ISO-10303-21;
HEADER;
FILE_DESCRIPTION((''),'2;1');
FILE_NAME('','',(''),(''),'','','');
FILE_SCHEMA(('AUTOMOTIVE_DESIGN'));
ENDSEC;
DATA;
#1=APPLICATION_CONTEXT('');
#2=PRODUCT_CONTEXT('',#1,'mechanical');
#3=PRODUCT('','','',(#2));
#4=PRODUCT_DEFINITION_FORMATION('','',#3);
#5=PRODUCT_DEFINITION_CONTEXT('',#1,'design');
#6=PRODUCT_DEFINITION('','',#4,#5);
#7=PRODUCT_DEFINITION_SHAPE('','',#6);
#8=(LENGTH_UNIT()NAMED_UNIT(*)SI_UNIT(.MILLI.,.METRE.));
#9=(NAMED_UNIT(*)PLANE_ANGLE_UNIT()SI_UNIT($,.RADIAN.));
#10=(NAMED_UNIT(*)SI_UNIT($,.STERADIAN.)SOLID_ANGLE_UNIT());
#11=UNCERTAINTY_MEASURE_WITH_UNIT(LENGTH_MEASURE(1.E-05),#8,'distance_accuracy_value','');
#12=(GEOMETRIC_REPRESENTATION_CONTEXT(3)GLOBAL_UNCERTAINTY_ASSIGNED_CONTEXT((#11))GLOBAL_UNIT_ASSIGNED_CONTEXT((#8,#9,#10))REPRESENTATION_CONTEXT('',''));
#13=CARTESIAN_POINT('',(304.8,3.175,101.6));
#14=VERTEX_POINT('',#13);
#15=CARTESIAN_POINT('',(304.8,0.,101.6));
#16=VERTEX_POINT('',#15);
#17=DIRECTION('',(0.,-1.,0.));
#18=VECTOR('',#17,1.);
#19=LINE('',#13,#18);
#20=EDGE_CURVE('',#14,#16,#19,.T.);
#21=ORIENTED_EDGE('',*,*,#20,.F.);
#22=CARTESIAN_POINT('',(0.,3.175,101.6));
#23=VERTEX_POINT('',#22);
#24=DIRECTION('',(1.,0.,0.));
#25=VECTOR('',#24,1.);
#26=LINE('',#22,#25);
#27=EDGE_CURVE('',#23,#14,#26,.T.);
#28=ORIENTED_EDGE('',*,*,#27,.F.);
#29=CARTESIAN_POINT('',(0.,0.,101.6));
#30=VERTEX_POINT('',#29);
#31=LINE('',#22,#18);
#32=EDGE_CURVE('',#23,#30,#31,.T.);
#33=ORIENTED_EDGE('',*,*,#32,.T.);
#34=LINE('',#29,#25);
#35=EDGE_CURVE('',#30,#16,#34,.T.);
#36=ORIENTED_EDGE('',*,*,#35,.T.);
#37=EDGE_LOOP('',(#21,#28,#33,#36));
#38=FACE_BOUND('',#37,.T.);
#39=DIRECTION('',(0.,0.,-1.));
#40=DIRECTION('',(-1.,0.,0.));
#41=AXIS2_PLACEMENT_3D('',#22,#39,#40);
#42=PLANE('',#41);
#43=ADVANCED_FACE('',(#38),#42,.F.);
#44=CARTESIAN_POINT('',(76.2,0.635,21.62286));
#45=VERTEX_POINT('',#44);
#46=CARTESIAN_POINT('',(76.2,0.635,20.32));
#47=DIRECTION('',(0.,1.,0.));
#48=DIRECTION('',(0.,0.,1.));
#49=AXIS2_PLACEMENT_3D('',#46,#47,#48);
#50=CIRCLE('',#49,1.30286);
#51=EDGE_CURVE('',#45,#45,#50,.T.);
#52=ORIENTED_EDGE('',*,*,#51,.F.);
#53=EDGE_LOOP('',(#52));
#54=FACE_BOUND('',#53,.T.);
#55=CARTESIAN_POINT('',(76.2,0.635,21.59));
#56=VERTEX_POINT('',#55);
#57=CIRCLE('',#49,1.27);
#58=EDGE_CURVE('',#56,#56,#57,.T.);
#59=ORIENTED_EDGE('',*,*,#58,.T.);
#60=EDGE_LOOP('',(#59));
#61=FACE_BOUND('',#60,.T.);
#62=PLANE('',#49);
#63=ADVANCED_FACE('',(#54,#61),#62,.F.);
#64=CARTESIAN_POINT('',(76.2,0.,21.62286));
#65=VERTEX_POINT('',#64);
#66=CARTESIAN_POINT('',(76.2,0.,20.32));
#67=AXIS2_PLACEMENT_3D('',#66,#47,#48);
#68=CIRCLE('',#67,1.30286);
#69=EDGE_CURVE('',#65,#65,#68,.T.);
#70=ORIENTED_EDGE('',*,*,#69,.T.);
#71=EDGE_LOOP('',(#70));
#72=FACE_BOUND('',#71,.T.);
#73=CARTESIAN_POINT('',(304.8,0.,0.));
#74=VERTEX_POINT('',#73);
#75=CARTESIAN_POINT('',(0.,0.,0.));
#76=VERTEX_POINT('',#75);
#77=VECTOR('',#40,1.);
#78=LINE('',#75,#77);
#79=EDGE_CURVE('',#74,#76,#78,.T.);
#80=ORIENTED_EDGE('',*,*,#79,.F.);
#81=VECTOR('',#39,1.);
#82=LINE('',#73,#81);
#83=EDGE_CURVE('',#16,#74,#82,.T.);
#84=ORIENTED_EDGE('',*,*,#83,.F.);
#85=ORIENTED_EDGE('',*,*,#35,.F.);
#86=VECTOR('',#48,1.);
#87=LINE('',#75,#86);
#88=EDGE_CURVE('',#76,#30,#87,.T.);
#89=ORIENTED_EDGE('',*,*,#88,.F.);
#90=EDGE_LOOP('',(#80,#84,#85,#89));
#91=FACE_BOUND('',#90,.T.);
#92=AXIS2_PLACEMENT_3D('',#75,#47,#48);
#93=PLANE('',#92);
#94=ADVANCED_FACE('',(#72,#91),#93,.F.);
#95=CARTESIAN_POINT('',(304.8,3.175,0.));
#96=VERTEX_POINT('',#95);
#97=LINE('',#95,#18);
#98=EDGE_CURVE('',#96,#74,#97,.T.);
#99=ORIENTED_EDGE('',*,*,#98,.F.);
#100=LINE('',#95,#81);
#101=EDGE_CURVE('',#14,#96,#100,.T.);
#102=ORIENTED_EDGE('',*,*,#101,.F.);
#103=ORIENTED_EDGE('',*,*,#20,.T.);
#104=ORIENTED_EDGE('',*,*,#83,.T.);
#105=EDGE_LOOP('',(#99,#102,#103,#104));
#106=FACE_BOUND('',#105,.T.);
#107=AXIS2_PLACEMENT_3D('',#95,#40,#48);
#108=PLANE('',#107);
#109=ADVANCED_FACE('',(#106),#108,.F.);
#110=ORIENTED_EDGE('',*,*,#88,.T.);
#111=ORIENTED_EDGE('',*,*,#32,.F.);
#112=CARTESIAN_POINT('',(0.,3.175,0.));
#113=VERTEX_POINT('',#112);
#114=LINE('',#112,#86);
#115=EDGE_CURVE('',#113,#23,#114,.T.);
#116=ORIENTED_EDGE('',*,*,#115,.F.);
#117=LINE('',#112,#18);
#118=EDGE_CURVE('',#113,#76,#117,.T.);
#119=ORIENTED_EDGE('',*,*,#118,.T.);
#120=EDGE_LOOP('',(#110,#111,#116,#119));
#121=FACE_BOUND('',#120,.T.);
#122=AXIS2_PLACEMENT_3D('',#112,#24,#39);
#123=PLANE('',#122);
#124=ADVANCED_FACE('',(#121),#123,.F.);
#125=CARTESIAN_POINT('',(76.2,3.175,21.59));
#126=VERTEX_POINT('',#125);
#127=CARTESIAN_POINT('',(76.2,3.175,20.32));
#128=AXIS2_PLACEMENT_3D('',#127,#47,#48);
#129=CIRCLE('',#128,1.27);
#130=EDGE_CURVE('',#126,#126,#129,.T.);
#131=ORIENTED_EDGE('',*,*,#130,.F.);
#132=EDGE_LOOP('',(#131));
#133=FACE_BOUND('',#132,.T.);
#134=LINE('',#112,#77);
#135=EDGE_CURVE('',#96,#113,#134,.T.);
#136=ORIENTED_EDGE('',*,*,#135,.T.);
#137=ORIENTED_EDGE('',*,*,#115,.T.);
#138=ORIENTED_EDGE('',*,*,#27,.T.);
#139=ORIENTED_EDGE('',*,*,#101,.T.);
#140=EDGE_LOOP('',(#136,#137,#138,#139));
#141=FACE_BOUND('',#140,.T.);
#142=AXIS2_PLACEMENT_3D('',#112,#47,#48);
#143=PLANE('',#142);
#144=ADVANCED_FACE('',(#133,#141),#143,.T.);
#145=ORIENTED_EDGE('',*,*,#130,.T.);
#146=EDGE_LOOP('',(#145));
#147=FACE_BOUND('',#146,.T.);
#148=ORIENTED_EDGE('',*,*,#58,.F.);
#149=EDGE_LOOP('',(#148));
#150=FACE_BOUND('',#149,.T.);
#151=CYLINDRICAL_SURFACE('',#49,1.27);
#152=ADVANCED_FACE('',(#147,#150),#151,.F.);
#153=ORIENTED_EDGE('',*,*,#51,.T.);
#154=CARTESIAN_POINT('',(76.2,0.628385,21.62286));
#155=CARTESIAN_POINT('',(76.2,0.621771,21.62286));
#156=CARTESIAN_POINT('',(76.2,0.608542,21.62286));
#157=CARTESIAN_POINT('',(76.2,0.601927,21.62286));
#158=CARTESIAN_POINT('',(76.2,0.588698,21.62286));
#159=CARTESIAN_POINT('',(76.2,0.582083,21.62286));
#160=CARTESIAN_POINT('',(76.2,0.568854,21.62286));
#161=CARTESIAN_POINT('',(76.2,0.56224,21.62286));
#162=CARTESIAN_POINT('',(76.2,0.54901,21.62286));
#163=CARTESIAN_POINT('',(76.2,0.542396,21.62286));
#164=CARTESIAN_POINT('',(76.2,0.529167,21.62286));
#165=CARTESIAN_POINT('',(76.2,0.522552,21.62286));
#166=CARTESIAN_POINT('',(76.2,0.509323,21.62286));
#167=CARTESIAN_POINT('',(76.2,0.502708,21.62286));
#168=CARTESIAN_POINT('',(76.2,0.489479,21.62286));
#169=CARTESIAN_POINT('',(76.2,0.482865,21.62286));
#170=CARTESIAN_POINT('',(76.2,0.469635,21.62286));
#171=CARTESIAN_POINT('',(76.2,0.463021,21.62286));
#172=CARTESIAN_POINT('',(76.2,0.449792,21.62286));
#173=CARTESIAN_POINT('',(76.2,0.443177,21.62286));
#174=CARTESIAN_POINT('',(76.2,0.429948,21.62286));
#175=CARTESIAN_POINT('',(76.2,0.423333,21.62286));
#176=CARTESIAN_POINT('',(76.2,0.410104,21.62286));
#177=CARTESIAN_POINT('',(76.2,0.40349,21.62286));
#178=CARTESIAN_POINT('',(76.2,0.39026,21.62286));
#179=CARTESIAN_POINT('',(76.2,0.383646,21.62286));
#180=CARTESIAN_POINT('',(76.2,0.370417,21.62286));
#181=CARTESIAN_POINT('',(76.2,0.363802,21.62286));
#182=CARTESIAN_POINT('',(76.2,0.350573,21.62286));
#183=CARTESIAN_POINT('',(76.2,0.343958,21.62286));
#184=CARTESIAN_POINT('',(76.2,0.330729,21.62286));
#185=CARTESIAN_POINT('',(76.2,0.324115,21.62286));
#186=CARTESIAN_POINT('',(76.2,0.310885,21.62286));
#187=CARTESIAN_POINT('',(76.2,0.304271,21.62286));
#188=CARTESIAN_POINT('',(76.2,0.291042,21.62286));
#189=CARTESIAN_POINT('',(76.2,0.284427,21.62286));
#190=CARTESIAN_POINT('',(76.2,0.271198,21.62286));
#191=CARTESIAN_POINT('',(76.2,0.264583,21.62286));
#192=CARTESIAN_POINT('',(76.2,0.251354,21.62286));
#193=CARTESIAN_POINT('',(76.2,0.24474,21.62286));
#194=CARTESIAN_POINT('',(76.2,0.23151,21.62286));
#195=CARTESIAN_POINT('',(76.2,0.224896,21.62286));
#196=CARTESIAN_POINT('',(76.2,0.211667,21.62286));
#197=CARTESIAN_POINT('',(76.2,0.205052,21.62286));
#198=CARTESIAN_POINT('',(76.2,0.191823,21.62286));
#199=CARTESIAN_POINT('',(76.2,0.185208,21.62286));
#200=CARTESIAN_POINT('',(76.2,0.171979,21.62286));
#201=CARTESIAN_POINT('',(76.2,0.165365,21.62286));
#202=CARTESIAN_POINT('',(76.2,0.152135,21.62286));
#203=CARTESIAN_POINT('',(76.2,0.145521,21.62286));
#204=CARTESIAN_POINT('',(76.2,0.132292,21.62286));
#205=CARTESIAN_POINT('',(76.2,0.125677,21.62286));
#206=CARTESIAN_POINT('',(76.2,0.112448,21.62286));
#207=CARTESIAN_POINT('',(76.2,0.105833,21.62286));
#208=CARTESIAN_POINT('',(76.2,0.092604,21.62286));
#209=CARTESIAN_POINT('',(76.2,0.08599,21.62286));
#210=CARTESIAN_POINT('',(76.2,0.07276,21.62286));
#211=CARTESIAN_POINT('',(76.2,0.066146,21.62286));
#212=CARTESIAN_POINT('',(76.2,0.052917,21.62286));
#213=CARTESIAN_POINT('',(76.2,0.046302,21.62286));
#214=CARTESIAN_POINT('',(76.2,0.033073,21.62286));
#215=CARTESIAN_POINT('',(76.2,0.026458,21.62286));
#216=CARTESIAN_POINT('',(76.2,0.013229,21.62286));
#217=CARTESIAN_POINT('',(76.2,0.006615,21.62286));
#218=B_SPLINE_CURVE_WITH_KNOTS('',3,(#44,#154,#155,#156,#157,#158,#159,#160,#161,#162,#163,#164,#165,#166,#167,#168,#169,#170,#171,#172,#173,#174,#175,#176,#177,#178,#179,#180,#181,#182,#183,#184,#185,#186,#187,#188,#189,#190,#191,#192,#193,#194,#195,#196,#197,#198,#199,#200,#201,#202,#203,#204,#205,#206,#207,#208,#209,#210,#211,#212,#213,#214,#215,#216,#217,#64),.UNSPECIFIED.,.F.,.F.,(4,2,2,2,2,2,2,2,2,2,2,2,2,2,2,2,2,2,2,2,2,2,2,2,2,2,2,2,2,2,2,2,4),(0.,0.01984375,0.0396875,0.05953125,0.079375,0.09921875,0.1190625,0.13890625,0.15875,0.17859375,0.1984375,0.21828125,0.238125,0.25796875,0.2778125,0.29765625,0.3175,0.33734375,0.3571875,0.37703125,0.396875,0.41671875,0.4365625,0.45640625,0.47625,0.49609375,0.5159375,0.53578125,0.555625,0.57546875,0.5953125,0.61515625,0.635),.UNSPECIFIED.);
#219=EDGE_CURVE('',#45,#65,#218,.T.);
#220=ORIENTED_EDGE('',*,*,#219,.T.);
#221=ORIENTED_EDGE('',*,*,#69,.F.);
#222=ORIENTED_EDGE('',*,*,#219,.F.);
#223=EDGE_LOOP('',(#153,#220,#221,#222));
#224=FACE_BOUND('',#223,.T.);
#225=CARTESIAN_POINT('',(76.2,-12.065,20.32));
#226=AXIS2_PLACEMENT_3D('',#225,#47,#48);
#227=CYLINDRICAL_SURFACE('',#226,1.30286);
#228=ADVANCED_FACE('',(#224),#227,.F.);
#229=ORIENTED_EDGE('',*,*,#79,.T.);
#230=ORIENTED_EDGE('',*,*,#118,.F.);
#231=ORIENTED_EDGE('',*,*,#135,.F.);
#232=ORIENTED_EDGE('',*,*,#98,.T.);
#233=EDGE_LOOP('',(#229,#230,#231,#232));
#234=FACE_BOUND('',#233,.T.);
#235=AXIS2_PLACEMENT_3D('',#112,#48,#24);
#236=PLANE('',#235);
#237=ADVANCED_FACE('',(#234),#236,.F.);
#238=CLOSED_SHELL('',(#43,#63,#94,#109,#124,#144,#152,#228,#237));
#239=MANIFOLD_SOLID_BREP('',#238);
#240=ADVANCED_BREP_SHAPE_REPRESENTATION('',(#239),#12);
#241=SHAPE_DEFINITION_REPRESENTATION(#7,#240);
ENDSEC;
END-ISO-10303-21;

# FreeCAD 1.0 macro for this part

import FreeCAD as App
import Part
import Sketcher

V = App.Vector
Q = App.Units.Quantity


def add_polygon(sketch, points):
    """Adds a closed chain of lines whose ends are joined by coincident constraints."""
    first, n = sketch.GeometryCount, len(points)
    for a, b in zip(points, points[1:] + points[:1]):
        sketch.addGeometry(Part.LineSegment(App.Vector(*a, 0), App.Vector(*b, 0)), False)
    for i in range(n):
        sketch.addConstraint(Sketcher.Constraint("Coincident", first + i, 2, first + (i + 1) % n, 1))

doc = App.newDocument("Part")
body = doc.addObject("PartDesign::Body", "Body")

# Sketch on XZ plane
sketch1 = doc.addObject("Sketcher::SketchObject", "Sketch")
body.addObject(sketch1)
sketch1.AttachmentSupport = (doc.XZ_Plane, [""])
sketch1.MapMode = "FlatFace"
add_polygon(sketch1, [(0, 0), (0, 101.6), (304.8, 101.6), (304.8, 0)])  # lines 0-3
sketch1.addConstraint(Sketcher.Constraint("Vertical", 0))
sketch1.addConstraint(Sketcher.Constraint("Horizontal", 1))
sketch1.addConstraint(Sketcher.Constraint("Vertical", 2))
sketch1.addConstraint(Sketcher.Constraint("Horizontal", 3))
sketch1.addConstraint(Sketcher.Constraint("Coincident", 3, 2, -1, 1))
sketch1.addConstraint(Sketcher.Constraint("DistanceX", 1, 1, 1, 2, Q("12 in")))
sketch1.addConstraint(Sketcher.Constraint("DistanceY", 0, 1, 0, 2, Q("4 in")))
pad1 = doc.addObject("PartDesign::Pad", "Pad")
body.addObject(pad1)
pad1.Profile = sketch1
pad1.Length = Q("0.125 in")
pad1.Reversed = True

# Sketch on XZ plane
sketch2 = doc.addObject("Sketcher::SketchObject", "Sketch001")
body.addObject(sketch2)
sketch2.AttachmentSupport = (doc.XZ_Plane, [""])
sketch2.MapMode = "FlatFace"
sketch2.AttachmentOffset = App.Placement(V(0, 0, -0.125 * 25.4), App.Rotation())
sketch2.addGeometry(Part.Circle(V(76.2, 20.32, 0), V(0, 0, 1), 1.27), False)
sketch2.addConstraint(Sketcher.Constraint("Diameter", 0, Q("0.1 in")))
sketch2.addConstraint(Sketcher.Constraint("DistanceX", -1, 1, 0, 3, Q("3 in")))
sketch2.addConstraint(Sketcher.Constraint("DistanceY", -1, 1, 0, 3, Q("0.8 in")))
pocket1 = doc.addObject("PartDesign::Pocket", "Pocket")
body.addObject(pocket1)
pocket1.Profile = sketch2
pocket1.Length = Q("0.1 in")
pocket1.Reversed = True

# Sketch on XZ plane
sketch3 = doc.addObject("Sketcher::SketchObject", "Sketch002")
body.addObject(sketch3)
sketch3.AttachmentSupport = (doc.XZ_Plane, [""])
sketch3.MapMode = "FlatFace"
sketch3.AttachmentOffset = App.Placement(V(0, 0, -0.025 * 25.4), App.Rotation())
sketch3.addGeometry(Part.Circle(V(76.2, 20.32, 0), V(0, 0, 1), 1.30286), False)
sketch3.addConstraint(Sketcher.Constraint("DistanceX", -1, 1, 0, 3, Q("3 in")))
sketch3.addConstraint(Sketcher.Constraint("DistanceY", -1, 1, 0, 3, Q("0.8 in")))
sketch3.addConstraint(Sketcher.Constraint("Diameter", 0, 2.60572))
pocket2 = doc.addObject("PartDesign::Pocket", "Pocket001")
body.addObject(pocket2)
pocket2.Profile = sketch3
pocket2.Length = Q("0.5 in")
pocket2.Reversed = True

doc.recompute()
